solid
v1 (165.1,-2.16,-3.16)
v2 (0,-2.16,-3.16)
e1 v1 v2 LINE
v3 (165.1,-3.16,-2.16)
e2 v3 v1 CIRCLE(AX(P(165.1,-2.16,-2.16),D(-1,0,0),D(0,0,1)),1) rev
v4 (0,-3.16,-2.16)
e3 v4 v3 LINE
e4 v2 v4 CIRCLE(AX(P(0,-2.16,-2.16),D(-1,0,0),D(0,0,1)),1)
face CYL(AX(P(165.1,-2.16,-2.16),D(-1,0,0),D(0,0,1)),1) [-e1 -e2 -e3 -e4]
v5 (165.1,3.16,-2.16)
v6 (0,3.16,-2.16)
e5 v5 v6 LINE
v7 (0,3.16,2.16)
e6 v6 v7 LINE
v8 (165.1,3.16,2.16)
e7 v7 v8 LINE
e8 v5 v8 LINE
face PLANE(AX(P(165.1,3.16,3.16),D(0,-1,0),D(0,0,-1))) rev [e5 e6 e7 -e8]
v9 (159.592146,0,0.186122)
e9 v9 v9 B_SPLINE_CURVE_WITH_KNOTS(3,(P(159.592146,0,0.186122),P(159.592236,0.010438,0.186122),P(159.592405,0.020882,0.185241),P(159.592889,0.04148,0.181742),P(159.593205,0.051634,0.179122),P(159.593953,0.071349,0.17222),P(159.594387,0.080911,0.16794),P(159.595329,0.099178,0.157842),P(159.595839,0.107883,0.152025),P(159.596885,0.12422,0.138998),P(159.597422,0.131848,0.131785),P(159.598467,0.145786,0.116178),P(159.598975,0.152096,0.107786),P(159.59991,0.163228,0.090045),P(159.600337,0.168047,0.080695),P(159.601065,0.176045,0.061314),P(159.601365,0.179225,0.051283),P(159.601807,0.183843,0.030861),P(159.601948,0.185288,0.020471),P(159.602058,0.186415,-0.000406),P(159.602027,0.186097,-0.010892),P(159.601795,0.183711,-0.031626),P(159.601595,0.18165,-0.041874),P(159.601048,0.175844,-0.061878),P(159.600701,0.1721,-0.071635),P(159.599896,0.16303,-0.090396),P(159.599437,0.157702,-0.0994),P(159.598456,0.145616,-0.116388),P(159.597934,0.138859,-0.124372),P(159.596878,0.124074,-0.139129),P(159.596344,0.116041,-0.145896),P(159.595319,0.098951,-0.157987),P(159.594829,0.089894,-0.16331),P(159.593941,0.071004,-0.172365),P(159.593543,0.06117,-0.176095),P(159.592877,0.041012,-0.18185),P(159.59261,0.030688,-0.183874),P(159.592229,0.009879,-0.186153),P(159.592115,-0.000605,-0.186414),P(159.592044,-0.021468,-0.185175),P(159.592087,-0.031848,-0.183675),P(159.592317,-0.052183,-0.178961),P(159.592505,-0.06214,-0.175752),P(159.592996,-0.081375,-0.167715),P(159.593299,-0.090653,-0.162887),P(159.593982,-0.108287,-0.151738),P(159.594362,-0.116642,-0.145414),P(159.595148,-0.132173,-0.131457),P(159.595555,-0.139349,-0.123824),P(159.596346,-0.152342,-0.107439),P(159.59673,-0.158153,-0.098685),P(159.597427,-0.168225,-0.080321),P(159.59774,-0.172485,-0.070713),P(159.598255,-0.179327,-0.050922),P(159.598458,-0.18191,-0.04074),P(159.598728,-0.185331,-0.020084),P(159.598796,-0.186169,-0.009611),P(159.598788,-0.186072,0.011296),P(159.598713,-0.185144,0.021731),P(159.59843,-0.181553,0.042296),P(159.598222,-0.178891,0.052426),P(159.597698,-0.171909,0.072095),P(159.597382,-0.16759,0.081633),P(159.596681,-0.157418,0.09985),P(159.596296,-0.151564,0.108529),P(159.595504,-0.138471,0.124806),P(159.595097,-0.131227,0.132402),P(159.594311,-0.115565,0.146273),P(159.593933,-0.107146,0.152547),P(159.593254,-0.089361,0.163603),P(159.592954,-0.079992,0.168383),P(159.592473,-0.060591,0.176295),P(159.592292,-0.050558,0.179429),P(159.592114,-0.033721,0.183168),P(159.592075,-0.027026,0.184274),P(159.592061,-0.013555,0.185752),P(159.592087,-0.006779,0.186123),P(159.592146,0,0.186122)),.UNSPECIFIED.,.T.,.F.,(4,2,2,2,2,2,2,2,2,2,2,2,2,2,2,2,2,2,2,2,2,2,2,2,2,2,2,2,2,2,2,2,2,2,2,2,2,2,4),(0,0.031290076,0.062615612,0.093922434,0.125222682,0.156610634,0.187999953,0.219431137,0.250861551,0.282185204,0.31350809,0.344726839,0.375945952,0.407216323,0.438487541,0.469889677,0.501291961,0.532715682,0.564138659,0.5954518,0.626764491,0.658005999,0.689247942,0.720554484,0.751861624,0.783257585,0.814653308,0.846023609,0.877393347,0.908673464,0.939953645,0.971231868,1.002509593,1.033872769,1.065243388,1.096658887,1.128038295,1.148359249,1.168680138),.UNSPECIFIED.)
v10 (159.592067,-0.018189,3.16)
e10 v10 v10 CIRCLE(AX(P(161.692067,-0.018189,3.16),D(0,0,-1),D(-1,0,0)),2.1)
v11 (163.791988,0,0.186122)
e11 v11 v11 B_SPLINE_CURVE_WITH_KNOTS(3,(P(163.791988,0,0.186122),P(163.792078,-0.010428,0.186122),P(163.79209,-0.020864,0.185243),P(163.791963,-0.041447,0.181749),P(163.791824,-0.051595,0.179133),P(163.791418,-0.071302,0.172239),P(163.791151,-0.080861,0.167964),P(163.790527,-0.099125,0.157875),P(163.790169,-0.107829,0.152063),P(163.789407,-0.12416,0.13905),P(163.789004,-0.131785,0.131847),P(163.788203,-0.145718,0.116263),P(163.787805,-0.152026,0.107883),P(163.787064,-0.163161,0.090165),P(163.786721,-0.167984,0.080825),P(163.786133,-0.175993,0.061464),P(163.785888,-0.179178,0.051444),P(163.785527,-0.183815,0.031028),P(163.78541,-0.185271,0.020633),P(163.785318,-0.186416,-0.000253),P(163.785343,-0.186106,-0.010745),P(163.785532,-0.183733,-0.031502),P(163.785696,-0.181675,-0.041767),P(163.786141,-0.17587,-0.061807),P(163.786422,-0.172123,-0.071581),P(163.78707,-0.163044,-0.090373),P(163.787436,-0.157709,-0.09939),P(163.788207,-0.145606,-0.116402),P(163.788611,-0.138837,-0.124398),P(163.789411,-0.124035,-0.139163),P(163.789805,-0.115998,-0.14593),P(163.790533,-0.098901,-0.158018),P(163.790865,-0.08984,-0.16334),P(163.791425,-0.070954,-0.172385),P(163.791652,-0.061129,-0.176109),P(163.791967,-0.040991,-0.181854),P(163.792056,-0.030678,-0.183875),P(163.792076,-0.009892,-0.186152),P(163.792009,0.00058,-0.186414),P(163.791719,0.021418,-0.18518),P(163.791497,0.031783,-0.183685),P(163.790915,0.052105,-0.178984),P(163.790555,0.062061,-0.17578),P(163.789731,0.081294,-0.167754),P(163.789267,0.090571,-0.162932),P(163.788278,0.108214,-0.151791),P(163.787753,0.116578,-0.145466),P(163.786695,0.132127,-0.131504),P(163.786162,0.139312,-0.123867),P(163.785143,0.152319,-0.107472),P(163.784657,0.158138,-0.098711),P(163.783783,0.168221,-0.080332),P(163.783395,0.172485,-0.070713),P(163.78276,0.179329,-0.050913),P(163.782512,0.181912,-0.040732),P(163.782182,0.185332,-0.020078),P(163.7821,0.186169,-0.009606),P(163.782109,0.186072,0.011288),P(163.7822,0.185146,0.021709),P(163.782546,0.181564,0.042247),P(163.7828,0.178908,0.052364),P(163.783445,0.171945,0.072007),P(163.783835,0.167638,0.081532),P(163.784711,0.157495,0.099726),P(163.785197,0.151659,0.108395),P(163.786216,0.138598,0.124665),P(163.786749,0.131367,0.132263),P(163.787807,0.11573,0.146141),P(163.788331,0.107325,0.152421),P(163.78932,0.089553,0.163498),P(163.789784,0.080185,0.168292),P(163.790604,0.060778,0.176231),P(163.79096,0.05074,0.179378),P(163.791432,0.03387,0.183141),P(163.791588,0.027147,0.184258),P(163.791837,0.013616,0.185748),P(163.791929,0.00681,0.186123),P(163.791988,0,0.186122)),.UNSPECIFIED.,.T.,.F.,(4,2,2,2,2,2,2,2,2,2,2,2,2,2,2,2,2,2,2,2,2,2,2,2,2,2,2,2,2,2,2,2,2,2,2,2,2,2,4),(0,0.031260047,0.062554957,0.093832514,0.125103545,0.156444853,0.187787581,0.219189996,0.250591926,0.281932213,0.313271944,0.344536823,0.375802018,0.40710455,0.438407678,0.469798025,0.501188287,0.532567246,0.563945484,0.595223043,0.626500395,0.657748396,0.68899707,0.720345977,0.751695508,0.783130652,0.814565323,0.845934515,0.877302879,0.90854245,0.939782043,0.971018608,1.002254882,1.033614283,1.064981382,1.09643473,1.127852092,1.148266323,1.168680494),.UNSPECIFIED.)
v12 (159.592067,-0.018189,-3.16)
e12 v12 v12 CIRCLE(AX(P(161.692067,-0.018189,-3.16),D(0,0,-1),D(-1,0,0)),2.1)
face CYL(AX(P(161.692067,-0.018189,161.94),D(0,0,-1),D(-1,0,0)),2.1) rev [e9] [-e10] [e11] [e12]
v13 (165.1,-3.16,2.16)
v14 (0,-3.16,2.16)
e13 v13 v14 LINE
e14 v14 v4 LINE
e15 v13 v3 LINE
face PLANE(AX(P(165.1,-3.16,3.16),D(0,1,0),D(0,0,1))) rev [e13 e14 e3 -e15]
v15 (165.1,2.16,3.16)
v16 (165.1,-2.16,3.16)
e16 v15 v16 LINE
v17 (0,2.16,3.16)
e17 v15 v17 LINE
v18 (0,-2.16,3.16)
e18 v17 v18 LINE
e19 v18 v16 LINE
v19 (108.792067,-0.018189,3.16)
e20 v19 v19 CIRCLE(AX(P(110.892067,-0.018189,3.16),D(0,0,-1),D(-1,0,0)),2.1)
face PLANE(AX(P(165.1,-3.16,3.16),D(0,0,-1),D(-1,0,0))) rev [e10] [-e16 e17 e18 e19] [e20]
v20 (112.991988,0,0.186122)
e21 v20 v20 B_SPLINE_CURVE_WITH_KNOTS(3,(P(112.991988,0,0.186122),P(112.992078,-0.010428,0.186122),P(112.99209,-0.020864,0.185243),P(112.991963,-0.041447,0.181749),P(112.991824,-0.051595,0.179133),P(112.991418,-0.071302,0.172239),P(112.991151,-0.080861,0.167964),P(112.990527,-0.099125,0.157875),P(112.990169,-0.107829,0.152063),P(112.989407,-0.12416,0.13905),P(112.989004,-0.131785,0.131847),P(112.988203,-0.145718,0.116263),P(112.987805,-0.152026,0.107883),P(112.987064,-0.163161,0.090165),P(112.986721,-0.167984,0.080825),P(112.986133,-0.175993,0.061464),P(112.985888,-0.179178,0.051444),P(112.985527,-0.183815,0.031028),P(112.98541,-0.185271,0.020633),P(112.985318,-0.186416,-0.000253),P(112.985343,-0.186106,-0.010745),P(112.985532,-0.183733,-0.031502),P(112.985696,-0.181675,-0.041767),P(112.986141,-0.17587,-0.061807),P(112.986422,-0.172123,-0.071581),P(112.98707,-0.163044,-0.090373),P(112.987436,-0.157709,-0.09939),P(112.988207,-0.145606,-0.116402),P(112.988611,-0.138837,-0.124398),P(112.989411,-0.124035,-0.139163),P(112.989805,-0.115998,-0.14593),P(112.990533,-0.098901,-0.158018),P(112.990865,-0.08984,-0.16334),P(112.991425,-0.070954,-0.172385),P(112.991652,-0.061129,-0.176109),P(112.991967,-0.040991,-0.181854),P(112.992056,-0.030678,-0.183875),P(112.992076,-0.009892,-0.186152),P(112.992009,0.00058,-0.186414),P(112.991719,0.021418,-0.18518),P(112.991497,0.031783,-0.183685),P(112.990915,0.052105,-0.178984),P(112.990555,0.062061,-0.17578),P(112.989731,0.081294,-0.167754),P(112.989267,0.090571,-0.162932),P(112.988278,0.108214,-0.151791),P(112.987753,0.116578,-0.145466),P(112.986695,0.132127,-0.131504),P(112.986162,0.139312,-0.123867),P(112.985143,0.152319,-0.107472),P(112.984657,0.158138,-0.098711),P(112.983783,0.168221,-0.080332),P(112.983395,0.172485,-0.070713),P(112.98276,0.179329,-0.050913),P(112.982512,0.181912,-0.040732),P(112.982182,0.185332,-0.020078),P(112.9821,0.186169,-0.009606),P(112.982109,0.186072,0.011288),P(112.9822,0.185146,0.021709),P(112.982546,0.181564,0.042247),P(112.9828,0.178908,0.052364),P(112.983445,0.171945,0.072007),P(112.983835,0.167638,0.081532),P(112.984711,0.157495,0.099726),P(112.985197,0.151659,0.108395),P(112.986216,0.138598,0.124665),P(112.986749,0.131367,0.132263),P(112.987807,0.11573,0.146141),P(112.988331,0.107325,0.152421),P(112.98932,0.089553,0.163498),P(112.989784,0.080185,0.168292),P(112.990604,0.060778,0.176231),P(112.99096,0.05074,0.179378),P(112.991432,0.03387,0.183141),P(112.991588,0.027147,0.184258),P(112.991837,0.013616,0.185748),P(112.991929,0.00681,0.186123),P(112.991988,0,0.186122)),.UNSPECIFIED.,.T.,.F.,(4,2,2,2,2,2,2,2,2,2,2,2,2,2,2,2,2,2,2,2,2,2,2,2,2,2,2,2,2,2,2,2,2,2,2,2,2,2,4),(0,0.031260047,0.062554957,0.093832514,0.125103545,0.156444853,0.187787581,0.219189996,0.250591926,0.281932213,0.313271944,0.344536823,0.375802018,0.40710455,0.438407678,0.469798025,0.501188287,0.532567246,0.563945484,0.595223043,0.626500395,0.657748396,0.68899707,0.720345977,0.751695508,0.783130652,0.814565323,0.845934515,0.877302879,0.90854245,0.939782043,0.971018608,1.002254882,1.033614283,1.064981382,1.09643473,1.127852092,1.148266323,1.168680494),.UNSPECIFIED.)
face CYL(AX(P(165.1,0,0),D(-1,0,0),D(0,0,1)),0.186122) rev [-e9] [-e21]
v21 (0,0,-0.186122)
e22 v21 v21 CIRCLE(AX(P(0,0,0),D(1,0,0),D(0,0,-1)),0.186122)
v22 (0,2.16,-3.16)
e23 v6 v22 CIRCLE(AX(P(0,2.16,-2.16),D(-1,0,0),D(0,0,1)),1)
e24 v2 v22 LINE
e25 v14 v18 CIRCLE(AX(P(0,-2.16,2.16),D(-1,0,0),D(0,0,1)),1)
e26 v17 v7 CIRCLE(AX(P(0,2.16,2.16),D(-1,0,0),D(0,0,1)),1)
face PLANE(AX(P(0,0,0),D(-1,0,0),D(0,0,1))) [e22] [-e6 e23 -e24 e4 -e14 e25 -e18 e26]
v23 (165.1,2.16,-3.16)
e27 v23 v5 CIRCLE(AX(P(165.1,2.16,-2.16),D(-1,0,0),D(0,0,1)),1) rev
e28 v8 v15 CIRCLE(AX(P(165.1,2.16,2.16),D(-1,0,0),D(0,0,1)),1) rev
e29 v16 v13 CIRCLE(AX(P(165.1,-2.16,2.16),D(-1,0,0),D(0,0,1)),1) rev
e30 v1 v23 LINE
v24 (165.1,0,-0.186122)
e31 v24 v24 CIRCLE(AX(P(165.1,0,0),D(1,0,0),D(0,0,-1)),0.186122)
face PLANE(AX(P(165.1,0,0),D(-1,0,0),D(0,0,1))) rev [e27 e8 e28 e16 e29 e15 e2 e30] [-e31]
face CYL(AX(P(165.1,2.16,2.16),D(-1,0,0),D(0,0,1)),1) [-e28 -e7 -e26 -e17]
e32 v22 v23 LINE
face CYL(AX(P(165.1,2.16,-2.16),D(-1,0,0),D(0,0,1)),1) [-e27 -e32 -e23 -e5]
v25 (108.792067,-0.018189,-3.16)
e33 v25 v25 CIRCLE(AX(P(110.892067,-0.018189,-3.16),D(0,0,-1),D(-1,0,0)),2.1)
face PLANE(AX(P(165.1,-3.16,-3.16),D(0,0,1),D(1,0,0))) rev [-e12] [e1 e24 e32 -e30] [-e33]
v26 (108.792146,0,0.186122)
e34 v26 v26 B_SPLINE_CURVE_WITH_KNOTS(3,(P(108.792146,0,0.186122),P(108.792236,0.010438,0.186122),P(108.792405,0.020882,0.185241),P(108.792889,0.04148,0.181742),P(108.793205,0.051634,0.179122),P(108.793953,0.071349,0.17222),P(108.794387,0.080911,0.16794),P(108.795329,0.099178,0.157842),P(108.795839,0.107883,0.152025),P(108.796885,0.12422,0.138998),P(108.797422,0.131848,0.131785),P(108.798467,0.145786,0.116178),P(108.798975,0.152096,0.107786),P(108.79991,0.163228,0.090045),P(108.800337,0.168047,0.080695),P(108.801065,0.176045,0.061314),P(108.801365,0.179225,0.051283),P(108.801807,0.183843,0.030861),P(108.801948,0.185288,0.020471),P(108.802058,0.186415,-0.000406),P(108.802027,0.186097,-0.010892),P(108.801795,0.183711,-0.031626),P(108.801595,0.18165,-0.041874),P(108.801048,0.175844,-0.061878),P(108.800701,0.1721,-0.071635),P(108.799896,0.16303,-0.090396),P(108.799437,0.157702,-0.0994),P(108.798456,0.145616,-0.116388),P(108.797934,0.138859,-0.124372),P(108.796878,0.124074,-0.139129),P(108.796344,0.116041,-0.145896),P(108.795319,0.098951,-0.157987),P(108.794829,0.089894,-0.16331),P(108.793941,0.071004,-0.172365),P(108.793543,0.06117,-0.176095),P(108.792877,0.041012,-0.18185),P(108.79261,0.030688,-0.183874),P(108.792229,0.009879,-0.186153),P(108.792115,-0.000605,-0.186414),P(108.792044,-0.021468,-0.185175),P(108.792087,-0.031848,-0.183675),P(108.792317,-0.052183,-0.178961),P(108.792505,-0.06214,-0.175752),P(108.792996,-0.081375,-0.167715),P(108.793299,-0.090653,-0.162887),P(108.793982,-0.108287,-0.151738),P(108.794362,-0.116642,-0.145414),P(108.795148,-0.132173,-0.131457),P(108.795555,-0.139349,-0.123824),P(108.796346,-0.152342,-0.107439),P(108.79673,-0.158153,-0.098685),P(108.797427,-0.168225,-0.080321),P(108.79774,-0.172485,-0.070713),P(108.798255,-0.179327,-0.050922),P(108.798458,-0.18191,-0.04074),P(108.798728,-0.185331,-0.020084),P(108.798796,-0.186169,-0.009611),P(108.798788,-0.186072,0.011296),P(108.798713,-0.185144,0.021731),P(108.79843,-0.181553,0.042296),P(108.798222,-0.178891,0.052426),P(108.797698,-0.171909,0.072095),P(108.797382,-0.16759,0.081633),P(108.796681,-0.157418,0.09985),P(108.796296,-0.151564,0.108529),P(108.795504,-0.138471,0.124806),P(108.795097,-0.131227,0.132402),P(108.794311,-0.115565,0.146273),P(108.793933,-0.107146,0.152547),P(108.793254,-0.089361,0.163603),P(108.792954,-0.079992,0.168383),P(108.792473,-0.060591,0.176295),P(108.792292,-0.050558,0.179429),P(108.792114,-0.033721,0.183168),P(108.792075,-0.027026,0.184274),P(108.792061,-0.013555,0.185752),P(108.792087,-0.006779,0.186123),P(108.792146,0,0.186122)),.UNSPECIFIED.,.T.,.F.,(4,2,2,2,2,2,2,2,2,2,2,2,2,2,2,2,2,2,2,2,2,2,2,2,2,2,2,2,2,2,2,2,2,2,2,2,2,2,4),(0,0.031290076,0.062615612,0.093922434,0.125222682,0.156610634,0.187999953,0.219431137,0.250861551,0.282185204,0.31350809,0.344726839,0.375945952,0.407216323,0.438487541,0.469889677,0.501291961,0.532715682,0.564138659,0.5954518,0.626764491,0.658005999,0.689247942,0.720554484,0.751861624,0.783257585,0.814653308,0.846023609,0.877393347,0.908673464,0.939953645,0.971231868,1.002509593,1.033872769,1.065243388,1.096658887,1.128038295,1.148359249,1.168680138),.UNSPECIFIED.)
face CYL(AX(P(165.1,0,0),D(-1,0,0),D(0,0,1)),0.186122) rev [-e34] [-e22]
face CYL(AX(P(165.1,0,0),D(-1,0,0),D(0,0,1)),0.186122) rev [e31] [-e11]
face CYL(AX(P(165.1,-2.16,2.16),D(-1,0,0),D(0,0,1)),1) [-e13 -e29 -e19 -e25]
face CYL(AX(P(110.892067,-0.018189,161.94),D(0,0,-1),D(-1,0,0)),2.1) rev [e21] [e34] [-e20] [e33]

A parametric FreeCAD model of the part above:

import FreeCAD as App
import Part
import Sketcher

V = App.Vector
Q = App.Units.Quantity


def edges_at(feature, points):
    """Names of the edges that pass closest to the given points."""
    edges = feature.Shape.Edges
    near = lambda p: min(range(len(edges)), key=lambda i: edges[i].distToShape(Part.Vertex(*p))[0])
    return sorted({f"Edge{near(p) + 1}" for p in points})


def add_polygon(sketch, points):
    """Adds a closed chain of lines whose ends are joined by coincident constraints."""
    first, n = sketch.GeometryCount, len(points)
    for a, b in zip(points, points[1:] + points[:1]):
        sketch.addGeometry(Part.LineSegment(App.Vector(*a, 0), App.Vector(*b, 0)), False)
    for i in range(n):
        sketch.addConstraint(Sketcher.Constraint("Coincident", first + i, 2, first + (i + 1) % n, 1))

doc = App.newDocument("Part")
body = doc.addObject("PartDesign::Body", "Body")

sketch1 = doc.addObject("Sketcher::SketchObject", "Sketch")
body.addObject(sketch1)
sketch1.AttachmentSupport = (doc.YZ_Plane, [""])
sketch1.MapMode = "FlatFace"
add_polygon(sketch1, [(3.16, 3.16), (-3.16, 3.16), (-3.16, -3.16), (3.16, -3.16)])
sketch1.addGeometry(Part.Circle(V(0, 0, 0), V(0, 0, 1), 0.186122), False)
sketch1.addConstraint([
    Sketcher.Constraint("Horizontal", 0),
    Sketcher.Constraint("Vertical", 1),
    Sketcher.Constraint("Horizontal", 2),
    Sketcher.Constraint("Vertical", 3),
    Sketcher.Constraint("Coincident", 4, 3, -1, 1),
    Sketcher.Constraint("Symmetric", 0, 2, 2, 2, -1, 1),
    Sketcher.Constraint("Equal", 2, 1),
    Sketcher.Constraint("DistanceX", 0, 2, 0, 1, Q("6.32 mm")),
    Sketcher.Constraint("Diameter", 4, Q("0.372245 mm")),
])
pad1 = doc.addObject("PartDesign::Pad", "Pad")
body.addObject(pad1)
pad1.Profile = sketch1
pad1.Length = 165.1
doc.recompute()

fillet = doc.addObject("PartDesign::Fillet", "Fillet")
body.addObject(fillet)
fillet.Base = (pad1, edges_at(pad1, [
    (82.55, -3.16, -3.16),
    (82.55, -3.16, 3.16),
    (82.55, 3.16, 3.16),
    (82.55, 3.16, -3.16),
]))
fillet.Radius = 1

sketch2 = doc.addObject("Sketcher::SketchObject", "Sketch001")
body.addObject(sketch2)
sketch2.AttachmentSupport = (doc.XY_Plane, [""])
sketch2.MapMode = "FlatFace"
sketch2.AttachmentOffset = App.Placement(V(0, 0, -3.16), App.Rotation())
sketch2.addGeometry([
    Part.Circle(V(161.692067, -0.018189, 0), V(0, 0, 1), 2.1),
    Part.Circle(V(110.892067, -0.018189, 0), V(0, 0, 1), 2.1),
], False)
sketch2.addConstraint([
    Sketcher.Constraint("Equal", 0, 1),
    Sketcher.Constraint("Horizontal", 0, 3, 1, 3),
    Sketcher.Constraint("Diameter", 0, Q("4.2 mm")),
    Sketcher.Constraint("DistanceX", 1, 3, 0, 3, Q("50.8 mm")),
    Sketcher.Constraint("DistanceY", 0, 3, -1, 1, Q("0.018189 mm")),
    Sketcher.Constraint("DistanceX", -1, 1, 0, 3, Q("161.692067 mm")),
])
pocket1 = doc.addObject("PartDesign::Pocket", "Pocket")
body.addObject(pocket1)
pocket1.Profile = sketch2
pocket1.Length = 165.1
pocket1.Reversed = True

doc.recompute()
